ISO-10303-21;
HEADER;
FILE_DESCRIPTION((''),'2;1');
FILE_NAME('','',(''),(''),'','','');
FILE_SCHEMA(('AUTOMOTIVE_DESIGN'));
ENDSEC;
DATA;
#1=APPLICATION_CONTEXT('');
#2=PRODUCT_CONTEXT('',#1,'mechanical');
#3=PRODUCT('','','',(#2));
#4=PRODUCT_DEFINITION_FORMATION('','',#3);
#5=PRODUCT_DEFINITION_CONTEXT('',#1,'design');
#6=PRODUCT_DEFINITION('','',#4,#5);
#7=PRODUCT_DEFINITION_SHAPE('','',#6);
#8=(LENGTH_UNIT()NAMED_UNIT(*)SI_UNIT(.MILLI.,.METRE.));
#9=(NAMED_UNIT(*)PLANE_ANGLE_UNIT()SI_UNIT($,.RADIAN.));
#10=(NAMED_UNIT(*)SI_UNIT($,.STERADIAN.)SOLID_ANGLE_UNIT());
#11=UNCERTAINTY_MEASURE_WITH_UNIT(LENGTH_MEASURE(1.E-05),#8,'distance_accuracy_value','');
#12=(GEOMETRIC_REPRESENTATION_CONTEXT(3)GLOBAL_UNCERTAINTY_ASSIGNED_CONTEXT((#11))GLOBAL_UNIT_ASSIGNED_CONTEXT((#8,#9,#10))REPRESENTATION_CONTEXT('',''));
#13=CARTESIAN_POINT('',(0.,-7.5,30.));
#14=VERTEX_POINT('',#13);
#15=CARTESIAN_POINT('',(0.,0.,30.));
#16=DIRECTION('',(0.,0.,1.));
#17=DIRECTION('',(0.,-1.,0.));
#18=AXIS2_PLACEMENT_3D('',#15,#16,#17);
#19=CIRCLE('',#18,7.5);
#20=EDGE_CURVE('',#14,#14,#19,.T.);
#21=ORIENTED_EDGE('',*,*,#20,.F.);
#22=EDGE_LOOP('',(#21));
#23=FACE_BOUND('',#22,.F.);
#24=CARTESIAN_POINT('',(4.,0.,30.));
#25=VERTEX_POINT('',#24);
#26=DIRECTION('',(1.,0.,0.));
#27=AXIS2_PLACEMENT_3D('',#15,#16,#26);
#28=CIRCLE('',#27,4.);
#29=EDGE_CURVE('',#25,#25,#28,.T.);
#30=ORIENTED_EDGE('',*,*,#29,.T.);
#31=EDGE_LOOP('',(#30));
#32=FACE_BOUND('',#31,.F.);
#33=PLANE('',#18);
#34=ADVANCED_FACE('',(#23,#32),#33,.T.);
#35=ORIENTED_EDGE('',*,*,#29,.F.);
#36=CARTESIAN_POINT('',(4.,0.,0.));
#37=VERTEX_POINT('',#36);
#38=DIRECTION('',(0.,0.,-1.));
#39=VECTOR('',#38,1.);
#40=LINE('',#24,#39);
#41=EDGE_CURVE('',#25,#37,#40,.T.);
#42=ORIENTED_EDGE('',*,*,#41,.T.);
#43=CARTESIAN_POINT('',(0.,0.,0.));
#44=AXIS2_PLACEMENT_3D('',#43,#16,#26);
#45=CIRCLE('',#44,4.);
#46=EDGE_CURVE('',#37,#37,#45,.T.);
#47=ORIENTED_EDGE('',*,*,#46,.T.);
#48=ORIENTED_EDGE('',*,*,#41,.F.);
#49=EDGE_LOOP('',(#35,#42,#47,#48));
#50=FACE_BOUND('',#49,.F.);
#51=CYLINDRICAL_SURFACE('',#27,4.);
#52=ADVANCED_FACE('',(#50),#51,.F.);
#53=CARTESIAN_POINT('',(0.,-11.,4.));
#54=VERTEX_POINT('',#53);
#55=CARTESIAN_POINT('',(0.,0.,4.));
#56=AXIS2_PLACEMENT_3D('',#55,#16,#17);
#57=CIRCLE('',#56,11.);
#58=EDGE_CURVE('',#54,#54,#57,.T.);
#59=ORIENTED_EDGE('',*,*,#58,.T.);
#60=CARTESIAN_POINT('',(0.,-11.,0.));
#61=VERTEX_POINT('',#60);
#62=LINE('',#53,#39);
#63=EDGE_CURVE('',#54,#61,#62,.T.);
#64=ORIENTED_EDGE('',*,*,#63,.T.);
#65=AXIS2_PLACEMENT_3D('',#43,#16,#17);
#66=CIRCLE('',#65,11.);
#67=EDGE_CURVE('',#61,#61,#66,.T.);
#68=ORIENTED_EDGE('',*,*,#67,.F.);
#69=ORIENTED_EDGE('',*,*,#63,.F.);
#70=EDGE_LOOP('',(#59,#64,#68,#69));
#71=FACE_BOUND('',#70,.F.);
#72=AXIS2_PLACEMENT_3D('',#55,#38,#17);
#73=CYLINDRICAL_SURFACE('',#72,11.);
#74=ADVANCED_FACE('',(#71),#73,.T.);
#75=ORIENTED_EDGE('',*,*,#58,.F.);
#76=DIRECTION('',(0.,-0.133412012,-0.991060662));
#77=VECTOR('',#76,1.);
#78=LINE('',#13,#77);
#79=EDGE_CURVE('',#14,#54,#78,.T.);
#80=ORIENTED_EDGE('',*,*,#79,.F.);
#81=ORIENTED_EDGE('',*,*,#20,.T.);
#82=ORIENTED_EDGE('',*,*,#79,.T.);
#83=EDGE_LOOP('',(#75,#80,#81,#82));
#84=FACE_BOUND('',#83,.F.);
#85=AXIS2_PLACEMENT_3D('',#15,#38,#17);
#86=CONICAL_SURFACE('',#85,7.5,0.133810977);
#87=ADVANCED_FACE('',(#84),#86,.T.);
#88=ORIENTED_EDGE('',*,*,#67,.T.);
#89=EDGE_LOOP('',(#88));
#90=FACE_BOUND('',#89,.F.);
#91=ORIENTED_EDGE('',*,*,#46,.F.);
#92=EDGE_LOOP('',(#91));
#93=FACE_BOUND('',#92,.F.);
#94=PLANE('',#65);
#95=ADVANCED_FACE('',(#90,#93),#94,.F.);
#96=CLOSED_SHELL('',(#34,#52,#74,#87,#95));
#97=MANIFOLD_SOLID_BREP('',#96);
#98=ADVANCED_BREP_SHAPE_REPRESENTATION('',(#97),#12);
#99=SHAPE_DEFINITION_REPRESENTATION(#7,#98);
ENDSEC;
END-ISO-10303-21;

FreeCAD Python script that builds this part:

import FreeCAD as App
import Part
import Sketcher
Q = App.Units.Quantity

doc = App.newDocument("Part")
body = doc.addObject("PartDesign::Body", "Body")

# Sketch on YZ plane
sketch1 = body.newObject("Sketcher::SketchObject", "Sketch")
sketch1.AttachmentSupport = (doc.getObject("YZ_Plane"), [""])
sketch1.MapMode = "FlatFace"
sketch1.addGeometry([
    Part.LineSegment(App.Vector(-11, 0, 0), App.Vector(0, 0, 0)),  # 0
    Part.LineSegment(App.Vector(0, 0, 0), App.Vector(0, 30, 0)),  # 1
    Part.LineSegment(App.Vector(0, 30, 0), App.Vector(-7.5, 30, 0)),  # 2
    Part.LineSegment(App.Vector(-7.5, 30, 0), App.Vector(-11, 4, 0)),  # 3
    Part.LineSegment(App.Vector(-11, 4, 0), App.Vector(-11, 0, 0)),  # 4
], False)
sketch1.addConstraint([
    Sketcher.Constraint("Coincident", 0, 2, 1, 1),
    Sketcher.Constraint("Coincident", 1, 2, 2, 1),
    Sketcher.Constraint("Coincident", 2, 2, 3, 1),
    Sketcher.Constraint("Coincident", 3, 2, 4, 1),
    Sketcher.Constraint("Coincident", 4, 2, 0, 1),
    Sketcher.Constraint("Horizontal", 0),
    Sketcher.Constraint("Vertical", 1),
    Sketcher.Constraint("Horizontal", 2),
    Sketcher.Constraint("Vertical", 4),
    Sketcher.Constraint("Coincident", 0, 2, -1, 1),
    Sketcher.Constraint("DistanceX", 0, 1, 0, 2, Q("11 mm")),
    Sketcher.Constraint("DistanceY", 1, 1, 1, 2, Q("30 mm")),
    Sketcher.Constraint("DistanceY", 4, 2, 4, 1, Q("4 mm")),
    Sketcher.Constraint("DistanceX", 2, 2, 2, 1, Q("7.5 mm")),
])
revolution = body.newObject("PartDesign::Revolution", "Revolution")
revolution.Profile = sketch1
revolution.ReferenceAxis = (sketch1, ["V_Axis"])
revolution.Angle = 360

# Sketch on XY plane
sketch2 = body.newObject("Sketcher::SketchObject", "Sketch001")
sketch2.AttachmentSupport = (doc.getObject("XY_Plane"), [""])
sketch2.MapMode = "FlatFace"
sketch2.AttachmentOffset = App.Placement(App.Vector(0, 0, 30), App.Rotation())
sketch2.addGeometry(Part.Circle(App.Vector(0, 0, 0), App.Vector(0, 0, 1), 4), False)
sketch2.addConstraint([
    Sketcher.Constraint("Coincident", 0, 3, -1, 1),
    Sketcher.Constraint("Diameter", 0, Q("8 mm")),
])
pocket1 = body.newObject("PartDesign::Pocket", "Pocket")
pocket1.Profile = sketch2
pocket1.Length = 30

doc.recompute()
